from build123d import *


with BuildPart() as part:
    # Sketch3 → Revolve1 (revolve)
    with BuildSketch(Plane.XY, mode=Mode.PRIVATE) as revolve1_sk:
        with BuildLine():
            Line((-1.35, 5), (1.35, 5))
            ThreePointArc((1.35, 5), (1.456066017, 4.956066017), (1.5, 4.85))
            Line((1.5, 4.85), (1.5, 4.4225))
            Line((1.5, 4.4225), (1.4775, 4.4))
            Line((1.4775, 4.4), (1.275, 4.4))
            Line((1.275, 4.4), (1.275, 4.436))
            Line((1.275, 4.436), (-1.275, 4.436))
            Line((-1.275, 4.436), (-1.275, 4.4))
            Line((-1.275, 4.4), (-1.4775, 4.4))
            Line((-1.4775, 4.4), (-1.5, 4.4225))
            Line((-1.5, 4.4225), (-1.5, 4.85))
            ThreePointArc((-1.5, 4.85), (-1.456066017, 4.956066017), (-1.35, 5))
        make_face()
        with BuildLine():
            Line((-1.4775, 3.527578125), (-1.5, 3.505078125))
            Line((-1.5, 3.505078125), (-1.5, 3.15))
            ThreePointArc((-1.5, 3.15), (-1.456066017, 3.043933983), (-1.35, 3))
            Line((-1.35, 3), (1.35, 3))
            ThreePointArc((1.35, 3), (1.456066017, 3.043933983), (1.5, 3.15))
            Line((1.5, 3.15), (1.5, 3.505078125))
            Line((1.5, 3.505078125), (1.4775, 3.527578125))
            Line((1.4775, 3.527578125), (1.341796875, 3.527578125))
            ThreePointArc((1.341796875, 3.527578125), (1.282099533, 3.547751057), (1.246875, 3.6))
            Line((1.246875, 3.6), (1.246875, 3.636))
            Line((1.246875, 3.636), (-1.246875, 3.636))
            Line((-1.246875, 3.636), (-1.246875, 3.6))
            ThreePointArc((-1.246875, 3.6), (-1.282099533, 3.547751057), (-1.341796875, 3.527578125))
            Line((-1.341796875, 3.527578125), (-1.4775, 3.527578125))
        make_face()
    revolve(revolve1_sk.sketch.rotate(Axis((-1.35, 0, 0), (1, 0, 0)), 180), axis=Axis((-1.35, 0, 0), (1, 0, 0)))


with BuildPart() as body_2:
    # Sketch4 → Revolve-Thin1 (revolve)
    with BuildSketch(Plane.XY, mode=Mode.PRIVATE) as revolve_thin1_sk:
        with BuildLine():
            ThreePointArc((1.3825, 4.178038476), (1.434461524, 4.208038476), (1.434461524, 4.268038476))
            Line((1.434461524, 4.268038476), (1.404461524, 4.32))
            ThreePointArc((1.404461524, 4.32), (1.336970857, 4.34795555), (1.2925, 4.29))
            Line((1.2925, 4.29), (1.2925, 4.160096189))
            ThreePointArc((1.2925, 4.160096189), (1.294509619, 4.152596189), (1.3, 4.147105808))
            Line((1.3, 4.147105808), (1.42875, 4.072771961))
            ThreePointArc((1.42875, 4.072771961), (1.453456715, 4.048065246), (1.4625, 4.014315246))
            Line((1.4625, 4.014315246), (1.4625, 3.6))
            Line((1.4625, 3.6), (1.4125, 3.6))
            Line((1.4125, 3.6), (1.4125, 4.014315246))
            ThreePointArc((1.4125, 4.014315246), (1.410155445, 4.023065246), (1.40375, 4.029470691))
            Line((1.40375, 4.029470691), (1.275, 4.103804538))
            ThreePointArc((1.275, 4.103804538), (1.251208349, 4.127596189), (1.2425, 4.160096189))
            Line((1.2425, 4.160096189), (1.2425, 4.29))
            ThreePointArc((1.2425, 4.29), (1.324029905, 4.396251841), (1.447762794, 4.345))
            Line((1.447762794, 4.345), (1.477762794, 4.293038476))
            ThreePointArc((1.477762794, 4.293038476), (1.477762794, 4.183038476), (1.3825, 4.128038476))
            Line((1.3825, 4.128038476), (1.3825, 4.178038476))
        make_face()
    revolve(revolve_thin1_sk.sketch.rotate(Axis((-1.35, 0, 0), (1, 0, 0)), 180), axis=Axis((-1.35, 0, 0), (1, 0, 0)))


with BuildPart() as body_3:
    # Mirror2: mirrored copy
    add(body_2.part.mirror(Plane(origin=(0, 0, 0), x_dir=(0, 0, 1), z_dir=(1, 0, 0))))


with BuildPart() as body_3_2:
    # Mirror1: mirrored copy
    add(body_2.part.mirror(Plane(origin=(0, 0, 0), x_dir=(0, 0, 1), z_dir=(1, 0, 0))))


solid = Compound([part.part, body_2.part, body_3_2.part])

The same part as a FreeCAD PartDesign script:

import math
import FreeCAD as App
import Part
import Sketcher

V = App.Vector
Q = App.Units.Quantity

doc = App.newDocument("Part")
body = doc.addObject("PartDesign::Body", "Body")
body.AllowCompound = True

# Sketch on XY plane
sketch1 = body.newObject("Sketcher::SketchObject", "Sketch")
sketch1.AttachmentSupport = (doc.getObject("XY_Plane"), [""])
sketch1.MapMode = "FlatFace"
sketch1.addGeometry([
    Part.LineSegment(V(1.35, 5, 0), V(-1.35, 5, 0)),  # 0
    Part.ArcOfCircle(Part.Circle(V(-1.35, 4.85, 0), V(0, 0, 1), 0.15), math.radians(90), math.radians(180)),  # 1
    Part.LineSegment(V(-1.5, 4.85, 0), V(-1.5, 4.4225, 0)),  # 2
    Part.LineSegment(V(-1.5, 4.4225, 0), V(-1.4775, 4.4, 0)),  # 3
    Part.LineSegment(V(-1.4775, 4.4, 0), V(-1.275, 4.4, 0)),  # 4
    Part.LineSegment(V(-1.275, 4.4, 0), V(-1.275, 4.436, 0)),  # 5
    Part.LineSegment(V(-1.275, 4.436, 0), V(1.275, 4.436, 0)),  # 6
    Part.LineSegment(V(1.275, 4.436, 0), V(1.275, 4.4, 0)),  # 7
    Part.LineSegment(V(1.275, 4.4, 0), V(1.4775, 4.4, 0)),  # 8
    Part.LineSegment(V(1.4775, 4.4, 0), V(1.5, 4.4225, 0)),  # 9
    Part.LineSegment(V(1.5, 4.4225, 0), V(1.5, 4.85, 0)),  # 10
    Part.ArcOfCircle(Part.Circle(V(1.35, 4.85, 0), V(0, 0, 1), 0.15), math.radians(0), math.radians(90)),  # 11
    Part.LineSegment(V(-1.4775, 3.527578, 0), V(-1.5, 3.505078, 0)),  # 12
    Part.LineSegment(V(-1.5, 3.505078, 0), V(-1.5, 3.15, 0)),  # 13
    Part.ArcOfCircle(Part.Circle(V(-1.35, 3.15, 0), V(0, 0, 1), 0.15), math.radians(-180), math.radians(-90)),  # 14
    Part.LineSegment(V(-1.35, 3, 0), V(1.35, 3, 0)),  # 15
    Part.ArcOfCircle(Part.Circle(V(1.35, 3.15, 0), V(0, 0, 1), 0.15), math.radians(-90), math.radians(0)),  # 16
    Part.LineSegment(V(1.5, 3.15, 0), V(1.5, 3.505078, 0)),  # 17
    Part.LineSegment(V(1.5, 3.505078, 0), V(1.4775, 3.527578, 0)),  # 18
    Part.LineSegment(V(1.4775, 3.527578, 0), V(1.341797, 3.527578, 0)),  # 19
    Part.ArcOfCircle(Part.Circle(V(1.341797, 3.625995, 0), V(0, 0, 1), 0.098417), math.radians(-164.684581), math.radians(-89.999999)),  # 20
    Part.LineSegment(V(1.246875, 3.6, 0), V(1.246875, 3.636, 0)),  # 21
    Part.LineSegment(V(1.246875, 3.636, 0), V(-1.246875, 3.636, 0)),  # 22
    Part.LineSegment(V(-1.246875, 3.636, 0), V(-1.246875, 3.6, 0)),  # 23
    Part.ArcOfCircle(Part.Circle(V(-1.341797, 3.625995, 0), V(0, 0, 1), 0.098417), math.radians(-90.000001), math.radians(-15.315419)),  # 24
    Part.LineSegment(V(-1.341797, 3.527578, 0), V(-1.4775, 3.527578, 0)),  # 25
], False)
sketch1.addConstraint([
    Sketcher.Constraint("Tangent", 0, 2, 1, 1),
    Sketcher.Constraint("Tangent", 1, 2, 2, 1),
    Sketcher.Constraint("Coincident", 2, 2, 3, 1),
    Sketcher.Constraint("Coincident", 3, 2, 4, 1),
    Sketcher.Constraint("Coincident", 4, 2, 5, 1),
    Sketcher.Constraint("Coincident", 5, 2, 6, 1),
    Sketcher.Constraint("Coincident", 6, 2, 7, 1),
    Sketcher.Constraint("Coincident", 7, 2, 8, 1),
    Sketcher.Constraint("Coincident", 8, 2, 9, 1),
    Sketcher.Constraint("Coincident", 9, 2, 10, 1),
    Sketcher.Constraint("Tangent", 10, 2, 11, 1),
    Sketcher.Constraint("Tangent", 11, 2, 0, 1),
    Sketcher.Constraint("Coincident", 12, 2, 13, 1),
    Sketcher.Constraint("Tangent", 13, 2, 14, 1),
    Sketcher.Constraint("Tangent", 14, 2, 15, 1),
    Sketcher.Constraint("Tangent", 15, 2, 16, 1),
    Sketcher.Constraint("Tangent", 16, 2, 17, 1),
    Sketcher.Constraint("Coincident", 17, 2, 18, 1),
    Sketcher.Constraint("Coincident", 18, 2, 19, 1),
    Sketcher.Constraint("Tangent", 19, 2, 20, 2),
    Sketcher.Constraint("Coincident", 20, 1, 21, 1),
    Sketcher.Constraint("Coincident", 21, 2, 22, 1),
    Sketcher.Constraint("Coincident", 22, 2, 23, 1),
    Sketcher.Constraint("Coincident", 23, 2, 24, 2),
    Sketcher.Constraint("Tangent", 24, 1, 25, 1),
    Sketcher.Constraint("Coincident", 25, 2, 12, 1),
    Sketcher.Constraint("Horizontal", 0),
    Sketcher.Constraint("Vertical", 2),
    Sketcher.Constraint("Horizontal", 4),
    Sketcher.Constraint("Vertical", 5),
    Sketcher.Constraint("Horizontal", 6),
    Sketcher.Constraint("Vertical", 7),
    Sketcher.Constraint("Horizontal", 8),
    Sketcher.Constraint("Vertical", 10),
    Sketcher.Constraint("Vertical", 13),
    Sketcher.Constraint("Horizontal", 15),
    Sketcher.Constraint("Vertical", 17),
    Sketcher.Constraint("Horizontal", 19),
    Sketcher.Constraint("Vertical", 21),
    Sketcher.Constraint("Horizontal", 22),
    Sketcher.Constraint("Vertical", 23),
    Sketcher.Constraint("Horizontal", 25),
    Sketcher.Constraint("Equal", 1, 11),
    Sketcher.Constraint("Equal", 11, 14),
    Sketcher.Constraint("Equal", 14, 16),
    Sketcher.Constraint("Equal", 20, 24),
    Sketcher.Constraint("Symmetric", 20, 3, 24, 3, -2),
    Sketcher.Constraint("Symmetric", 4, 2, 7, 2, -2),
    Sketcher.Constraint("Symmetric", 2, 2, 9, 2, -2),
    Sketcher.Constraint("Symmetric", 12, 2, 17, 2, -2),
    Sketcher.Constraint("Perpendicular", 3, 9),
    Sketcher.Constraint("Parallel", 9, 12),
    Sketcher.Constraint("Perpendicular", 12, 18),
    Sketcher.Constraint("Horizontal", 20, 1, 23, 2),
    Sketcher.Constraint("Vertical", 1, 3, 14, 3),
    Sketcher.Constraint("Vertical", 8, 2, 18, 2),
    Sketcher.Constraint("Vertical", 3, 2, 25, 2),
    Sketcher.Constraint("Equal", 7, 21),
    Sketcher.Constraint("Radius", 1, 0.15),
    Sketcher.Constraint("DistanceX", 0, 2, 0, 1, 2.7),
    Sketcher.Constraint("DistanceY", -1, 1, 0, 2, 5.0),
    Sketcher.Constraint("DistanceY", -1, 1, 14, 2, 3.0),
    Sketcher.Constraint("DistanceX", 6, 1, 6, 2, 2.55),
    Sketcher.Constraint("DistanceY", -1, 1, 3, 2, 4.4),
    Sketcher.Constraint("DistanceY", -1, 1, 20, 1, 3.6),
    Sketcher.Constraint("DistanceY", 5, 1, 5, 2, 0.036),
    Sketcher.Constraint("DistanceX", 4, 1, 4, 2, 0.2025),
    Sketcher.Constraint("Radius", 20, 0.098417),
    Sketcher.Constraint("DistanceX", 22, 2, 22, 1, 2.49375),
    Sketcher.Constraint("DistanceY", 13, 2, 13, 1, 0.355078),
])
revolution = body.newObject("PartDesign::Revolution", "Revolution")
revolution.Profile = sketch1
revolution.ReferenceAxis = (sketch1, ["H_Axis"])
revolution.Angle = 360
body2 = doc.addObject("PartDesign::Body", "Body001")

# Sketch on XY plane
sketch2 = body2.newObject("Sketcher::SketchObject", "Sketch001")
sketch2.AttachmentSupport = (doc.getObject("XY_Plane001"), [""])
sketch2.MapMode = "FlatFace"
sketch2.addGeometry([
    Part.ArcOfCircle(Part.Circle(V(1.3825, 4.238038, 0), V(0, 0, 1), 0.06), math.radians(-90), math.radians(30)),  # 0
    Part.LineSegment(V(1.3825, 4.178038, 0), V(1.3825, 4.128038, 0)),  # 1
    Part.ArcOfCircle(Part.Circle(V(1.3825, 4.238038, 0), V(0, 0, 1), 0.11), math.radians(-90), math.radians(30)),  # 2
    Part.LineSegment(V(1.477763, 4.293038, 0), V(1.447763, 4.345, 0)),  # 3
    Part.ArcOfCircle(Part.Circle(V(1.3525, 4.29, 0), V(0, 0, 1), 0.11), math.radians(30), math.radians(180)),  # 4
    Part.LineSegment(V(1.2425, 4.29, 0), V(1.2425, 4.160096, 0)),  # 5
    Part.ArcOfCircle(Part.Circle(V(1.3075, 4.160096, 0), V(0, 0, 1), 0.065), math.radians(-179.999999), math.radians(-120)),  # 6
    Part.LineSegment(V(1.275, 4.103805, 0), V(1.40375, 4.029471, 0)),  # 7
    Part.ArcOfCircle(Part.Circle(V(1.395, 4.014315, 0), V(0, 0, 1), 0.0175), math.radians(-0.000003), math.radians(60.000002)),  # 8
    Part.LineSegment(V(1.4125, 4.014315, 0), V(1.4125, 3.6, 0)),  # 9
    Part.LineSegment(V(1.4125, 3.6, 0), V(1.4625, 3.6, 0)),  # 10
    Part.LineSegment(V(1.4625, 3.6, 0), V(1.4625, 4.014315, 0)),  # 11
    Part.ArcOfCircle(Part.Circle(V(1.395, 4.014315, 0), V(0, 0, 1), 0.0675), math.radians(-0.000001), math.radians(60)),  # 12
    Part.LineSegment(V(1.42875, 4.072772, 0), V(1.3, 4.147106, 0)),  # 13
    Part.ArcOfCircle(Part.Circle(V(1.3075, 4.160096, 0), V(0, 0, 1), 0.015), math.radians(180), math.radians(240)),  # 14
    Part.LineSegment(V(1.2925, 4.160096, 0), V(1.2925, 4.29, 0)),  # 15
    Part.ArcOfCircle(Part.Circle(V(1.3525, 4.29, 0), V(0, 0, 1), 0.06), math.radians(29.999999), math.radians(180.000001)),  # 16
    Part.LineSegment(V(1.404462, 4.32, 0), V(1.434462, 4.268038, 0)),  # 17
], False)
sketch2.addConstraint([
    Sketcher.Constraint("Coincident", 0, 1, 1, 1),
    Sketcher.Constraint("Coincident", 1, 2, 2, 1),
    Sketcher.Constraint("Tangent", 2, 2, 3, 1),
    Sketcher.Constraint("Tangent", 3, 2, 4, 1),
    Sketcher.Constraint("Tangent", 4, 2, 5, 1),
    Sketcher.Constraint("Tangent", 5, 2, 6, 1),
    Sketcher.Constraint("Tangent", 6, 2, 7, 1),
    Sketcher.Constraint("Tangent", 7, 2, 8, 2),
    Sketcher.Constraint("Tangent", 8, 1, 9, 1),
    Sketcher.Constraint("Coincident", 9, 2, 10, 1),
    Sketcher.Constraint("Coincident", 10, 2, 11, 1),
    Sketcher.Constraint("Tangent", 11, 2, 12, 1),
    Sketcher.Constraint("Tangent", 12, 2, 13, 1),
    Sketcher.Constraint("Tangent", 13, 2, 14, 2),
    Sketcher.Constraint("Tangent", 14, 1, 15, 1),
    Sketcher.Constraint("Tangent", 15, 2, 16, 2),
    Sketcher.Constraint("Tangent", 16, 1, 17, 1),
    Sketcher.Constraint("Tangent", 17, 2, 0, 2),
    Sketcher.Constraint("Vertical", 1),
    Sketcher.Constraint("Vertical", 5),
    Sketcher.Constraint("Vertical", 9),
    Sketcher.Constraint("Horizontal", 10),
    Sketcher.Constraint("Vertical", 11),
    Sketcher.Constraint("Vertical", 15),
    Sketcher.Constraint("Coincident", 2, 3, 0, 3),
    Sketcher.Constraint("Coincident", 12, 3, 8, 3),
    Sketcher.Constraint("Coincident", 14, 3, 6, 3),
    Sketcher.Constraint("Coincident", 16, 3, 4, 3),
    Sketcher.Constraint("Equal", 2, 4),
    Sketcher.Constraint("Equal", 0, 16),
    Sketcher.Constraint("Parallel", 7, 13),
    Sketcher.Constraint("Vertical", 2, 3, 0, 1),
    Sketcher.Constraint("Angle", 3, Q("120 deg")),
    Sketcher.Constraint("Angle", 7, Q("-30 deg")),
    Sketcher.Constraint("Radius", 0, 0.06),
    Sketcher.Constraint("Radius", 2, 0.11),
    Sketcher.Constraint("Radius", 6, 0.065),
    Sketcher.Constraint("DistanceY", -1, 1, 9, 2, 3.6),
    Sketcher.Constraint("DistanceX", -1, 1, 13, 2, 1.3),
    Sketcher.Constraint("Radius", 8, 0.0175),
    Sketcher.Constraint("Distance", 3, 0.06),
    Sketcher.Constraint("DistanceY", -1, 1, 4, 3, 4.29),
    Sketcher.Constraint("DistanceX", 1, 2, 8, 1, 0.03),
    Sketcher.Constraint("DistanceY", 5, 2, 5, 1, 0.129904),
])
revolution2 = body2.newObject("PartDesign::Revolution", "Revolution001")
revolution2.Profile = sketch2
revolution2.ReferenceAxis = (sketch2, ["H_Axis"])
revolution2.Angle = 360
body3 = doc.addObject("PartDesign::Body", "Body002")
doc.recompute()

mirroring = doc.addObject("Part::Mirroring", "Mirroring")
mirroring.Source = body2
mirroring.Base = V(0, 0, 0)
mirroring.Normal = V(1, 0, 0)
body3.BaseFeature = mirroring
doc.recompute()
body4 = doc.addObject("PartDesign::Body", "Body003")
doc.recompute()

mirroring2 = doc.addObject("Part::Mirroring", "Mirroring001")
mirroring2.Source = body2
mirroring2.Base = V(0, 0, 0)
mirroring2.Normal = V(1, 0, 0)
body4.BaseFeature = mirroring2
doc.recompute()
body3.Visibility = False
mirroring.Visibility = False
mirroring2.Visibility = False

doc.recompute()
